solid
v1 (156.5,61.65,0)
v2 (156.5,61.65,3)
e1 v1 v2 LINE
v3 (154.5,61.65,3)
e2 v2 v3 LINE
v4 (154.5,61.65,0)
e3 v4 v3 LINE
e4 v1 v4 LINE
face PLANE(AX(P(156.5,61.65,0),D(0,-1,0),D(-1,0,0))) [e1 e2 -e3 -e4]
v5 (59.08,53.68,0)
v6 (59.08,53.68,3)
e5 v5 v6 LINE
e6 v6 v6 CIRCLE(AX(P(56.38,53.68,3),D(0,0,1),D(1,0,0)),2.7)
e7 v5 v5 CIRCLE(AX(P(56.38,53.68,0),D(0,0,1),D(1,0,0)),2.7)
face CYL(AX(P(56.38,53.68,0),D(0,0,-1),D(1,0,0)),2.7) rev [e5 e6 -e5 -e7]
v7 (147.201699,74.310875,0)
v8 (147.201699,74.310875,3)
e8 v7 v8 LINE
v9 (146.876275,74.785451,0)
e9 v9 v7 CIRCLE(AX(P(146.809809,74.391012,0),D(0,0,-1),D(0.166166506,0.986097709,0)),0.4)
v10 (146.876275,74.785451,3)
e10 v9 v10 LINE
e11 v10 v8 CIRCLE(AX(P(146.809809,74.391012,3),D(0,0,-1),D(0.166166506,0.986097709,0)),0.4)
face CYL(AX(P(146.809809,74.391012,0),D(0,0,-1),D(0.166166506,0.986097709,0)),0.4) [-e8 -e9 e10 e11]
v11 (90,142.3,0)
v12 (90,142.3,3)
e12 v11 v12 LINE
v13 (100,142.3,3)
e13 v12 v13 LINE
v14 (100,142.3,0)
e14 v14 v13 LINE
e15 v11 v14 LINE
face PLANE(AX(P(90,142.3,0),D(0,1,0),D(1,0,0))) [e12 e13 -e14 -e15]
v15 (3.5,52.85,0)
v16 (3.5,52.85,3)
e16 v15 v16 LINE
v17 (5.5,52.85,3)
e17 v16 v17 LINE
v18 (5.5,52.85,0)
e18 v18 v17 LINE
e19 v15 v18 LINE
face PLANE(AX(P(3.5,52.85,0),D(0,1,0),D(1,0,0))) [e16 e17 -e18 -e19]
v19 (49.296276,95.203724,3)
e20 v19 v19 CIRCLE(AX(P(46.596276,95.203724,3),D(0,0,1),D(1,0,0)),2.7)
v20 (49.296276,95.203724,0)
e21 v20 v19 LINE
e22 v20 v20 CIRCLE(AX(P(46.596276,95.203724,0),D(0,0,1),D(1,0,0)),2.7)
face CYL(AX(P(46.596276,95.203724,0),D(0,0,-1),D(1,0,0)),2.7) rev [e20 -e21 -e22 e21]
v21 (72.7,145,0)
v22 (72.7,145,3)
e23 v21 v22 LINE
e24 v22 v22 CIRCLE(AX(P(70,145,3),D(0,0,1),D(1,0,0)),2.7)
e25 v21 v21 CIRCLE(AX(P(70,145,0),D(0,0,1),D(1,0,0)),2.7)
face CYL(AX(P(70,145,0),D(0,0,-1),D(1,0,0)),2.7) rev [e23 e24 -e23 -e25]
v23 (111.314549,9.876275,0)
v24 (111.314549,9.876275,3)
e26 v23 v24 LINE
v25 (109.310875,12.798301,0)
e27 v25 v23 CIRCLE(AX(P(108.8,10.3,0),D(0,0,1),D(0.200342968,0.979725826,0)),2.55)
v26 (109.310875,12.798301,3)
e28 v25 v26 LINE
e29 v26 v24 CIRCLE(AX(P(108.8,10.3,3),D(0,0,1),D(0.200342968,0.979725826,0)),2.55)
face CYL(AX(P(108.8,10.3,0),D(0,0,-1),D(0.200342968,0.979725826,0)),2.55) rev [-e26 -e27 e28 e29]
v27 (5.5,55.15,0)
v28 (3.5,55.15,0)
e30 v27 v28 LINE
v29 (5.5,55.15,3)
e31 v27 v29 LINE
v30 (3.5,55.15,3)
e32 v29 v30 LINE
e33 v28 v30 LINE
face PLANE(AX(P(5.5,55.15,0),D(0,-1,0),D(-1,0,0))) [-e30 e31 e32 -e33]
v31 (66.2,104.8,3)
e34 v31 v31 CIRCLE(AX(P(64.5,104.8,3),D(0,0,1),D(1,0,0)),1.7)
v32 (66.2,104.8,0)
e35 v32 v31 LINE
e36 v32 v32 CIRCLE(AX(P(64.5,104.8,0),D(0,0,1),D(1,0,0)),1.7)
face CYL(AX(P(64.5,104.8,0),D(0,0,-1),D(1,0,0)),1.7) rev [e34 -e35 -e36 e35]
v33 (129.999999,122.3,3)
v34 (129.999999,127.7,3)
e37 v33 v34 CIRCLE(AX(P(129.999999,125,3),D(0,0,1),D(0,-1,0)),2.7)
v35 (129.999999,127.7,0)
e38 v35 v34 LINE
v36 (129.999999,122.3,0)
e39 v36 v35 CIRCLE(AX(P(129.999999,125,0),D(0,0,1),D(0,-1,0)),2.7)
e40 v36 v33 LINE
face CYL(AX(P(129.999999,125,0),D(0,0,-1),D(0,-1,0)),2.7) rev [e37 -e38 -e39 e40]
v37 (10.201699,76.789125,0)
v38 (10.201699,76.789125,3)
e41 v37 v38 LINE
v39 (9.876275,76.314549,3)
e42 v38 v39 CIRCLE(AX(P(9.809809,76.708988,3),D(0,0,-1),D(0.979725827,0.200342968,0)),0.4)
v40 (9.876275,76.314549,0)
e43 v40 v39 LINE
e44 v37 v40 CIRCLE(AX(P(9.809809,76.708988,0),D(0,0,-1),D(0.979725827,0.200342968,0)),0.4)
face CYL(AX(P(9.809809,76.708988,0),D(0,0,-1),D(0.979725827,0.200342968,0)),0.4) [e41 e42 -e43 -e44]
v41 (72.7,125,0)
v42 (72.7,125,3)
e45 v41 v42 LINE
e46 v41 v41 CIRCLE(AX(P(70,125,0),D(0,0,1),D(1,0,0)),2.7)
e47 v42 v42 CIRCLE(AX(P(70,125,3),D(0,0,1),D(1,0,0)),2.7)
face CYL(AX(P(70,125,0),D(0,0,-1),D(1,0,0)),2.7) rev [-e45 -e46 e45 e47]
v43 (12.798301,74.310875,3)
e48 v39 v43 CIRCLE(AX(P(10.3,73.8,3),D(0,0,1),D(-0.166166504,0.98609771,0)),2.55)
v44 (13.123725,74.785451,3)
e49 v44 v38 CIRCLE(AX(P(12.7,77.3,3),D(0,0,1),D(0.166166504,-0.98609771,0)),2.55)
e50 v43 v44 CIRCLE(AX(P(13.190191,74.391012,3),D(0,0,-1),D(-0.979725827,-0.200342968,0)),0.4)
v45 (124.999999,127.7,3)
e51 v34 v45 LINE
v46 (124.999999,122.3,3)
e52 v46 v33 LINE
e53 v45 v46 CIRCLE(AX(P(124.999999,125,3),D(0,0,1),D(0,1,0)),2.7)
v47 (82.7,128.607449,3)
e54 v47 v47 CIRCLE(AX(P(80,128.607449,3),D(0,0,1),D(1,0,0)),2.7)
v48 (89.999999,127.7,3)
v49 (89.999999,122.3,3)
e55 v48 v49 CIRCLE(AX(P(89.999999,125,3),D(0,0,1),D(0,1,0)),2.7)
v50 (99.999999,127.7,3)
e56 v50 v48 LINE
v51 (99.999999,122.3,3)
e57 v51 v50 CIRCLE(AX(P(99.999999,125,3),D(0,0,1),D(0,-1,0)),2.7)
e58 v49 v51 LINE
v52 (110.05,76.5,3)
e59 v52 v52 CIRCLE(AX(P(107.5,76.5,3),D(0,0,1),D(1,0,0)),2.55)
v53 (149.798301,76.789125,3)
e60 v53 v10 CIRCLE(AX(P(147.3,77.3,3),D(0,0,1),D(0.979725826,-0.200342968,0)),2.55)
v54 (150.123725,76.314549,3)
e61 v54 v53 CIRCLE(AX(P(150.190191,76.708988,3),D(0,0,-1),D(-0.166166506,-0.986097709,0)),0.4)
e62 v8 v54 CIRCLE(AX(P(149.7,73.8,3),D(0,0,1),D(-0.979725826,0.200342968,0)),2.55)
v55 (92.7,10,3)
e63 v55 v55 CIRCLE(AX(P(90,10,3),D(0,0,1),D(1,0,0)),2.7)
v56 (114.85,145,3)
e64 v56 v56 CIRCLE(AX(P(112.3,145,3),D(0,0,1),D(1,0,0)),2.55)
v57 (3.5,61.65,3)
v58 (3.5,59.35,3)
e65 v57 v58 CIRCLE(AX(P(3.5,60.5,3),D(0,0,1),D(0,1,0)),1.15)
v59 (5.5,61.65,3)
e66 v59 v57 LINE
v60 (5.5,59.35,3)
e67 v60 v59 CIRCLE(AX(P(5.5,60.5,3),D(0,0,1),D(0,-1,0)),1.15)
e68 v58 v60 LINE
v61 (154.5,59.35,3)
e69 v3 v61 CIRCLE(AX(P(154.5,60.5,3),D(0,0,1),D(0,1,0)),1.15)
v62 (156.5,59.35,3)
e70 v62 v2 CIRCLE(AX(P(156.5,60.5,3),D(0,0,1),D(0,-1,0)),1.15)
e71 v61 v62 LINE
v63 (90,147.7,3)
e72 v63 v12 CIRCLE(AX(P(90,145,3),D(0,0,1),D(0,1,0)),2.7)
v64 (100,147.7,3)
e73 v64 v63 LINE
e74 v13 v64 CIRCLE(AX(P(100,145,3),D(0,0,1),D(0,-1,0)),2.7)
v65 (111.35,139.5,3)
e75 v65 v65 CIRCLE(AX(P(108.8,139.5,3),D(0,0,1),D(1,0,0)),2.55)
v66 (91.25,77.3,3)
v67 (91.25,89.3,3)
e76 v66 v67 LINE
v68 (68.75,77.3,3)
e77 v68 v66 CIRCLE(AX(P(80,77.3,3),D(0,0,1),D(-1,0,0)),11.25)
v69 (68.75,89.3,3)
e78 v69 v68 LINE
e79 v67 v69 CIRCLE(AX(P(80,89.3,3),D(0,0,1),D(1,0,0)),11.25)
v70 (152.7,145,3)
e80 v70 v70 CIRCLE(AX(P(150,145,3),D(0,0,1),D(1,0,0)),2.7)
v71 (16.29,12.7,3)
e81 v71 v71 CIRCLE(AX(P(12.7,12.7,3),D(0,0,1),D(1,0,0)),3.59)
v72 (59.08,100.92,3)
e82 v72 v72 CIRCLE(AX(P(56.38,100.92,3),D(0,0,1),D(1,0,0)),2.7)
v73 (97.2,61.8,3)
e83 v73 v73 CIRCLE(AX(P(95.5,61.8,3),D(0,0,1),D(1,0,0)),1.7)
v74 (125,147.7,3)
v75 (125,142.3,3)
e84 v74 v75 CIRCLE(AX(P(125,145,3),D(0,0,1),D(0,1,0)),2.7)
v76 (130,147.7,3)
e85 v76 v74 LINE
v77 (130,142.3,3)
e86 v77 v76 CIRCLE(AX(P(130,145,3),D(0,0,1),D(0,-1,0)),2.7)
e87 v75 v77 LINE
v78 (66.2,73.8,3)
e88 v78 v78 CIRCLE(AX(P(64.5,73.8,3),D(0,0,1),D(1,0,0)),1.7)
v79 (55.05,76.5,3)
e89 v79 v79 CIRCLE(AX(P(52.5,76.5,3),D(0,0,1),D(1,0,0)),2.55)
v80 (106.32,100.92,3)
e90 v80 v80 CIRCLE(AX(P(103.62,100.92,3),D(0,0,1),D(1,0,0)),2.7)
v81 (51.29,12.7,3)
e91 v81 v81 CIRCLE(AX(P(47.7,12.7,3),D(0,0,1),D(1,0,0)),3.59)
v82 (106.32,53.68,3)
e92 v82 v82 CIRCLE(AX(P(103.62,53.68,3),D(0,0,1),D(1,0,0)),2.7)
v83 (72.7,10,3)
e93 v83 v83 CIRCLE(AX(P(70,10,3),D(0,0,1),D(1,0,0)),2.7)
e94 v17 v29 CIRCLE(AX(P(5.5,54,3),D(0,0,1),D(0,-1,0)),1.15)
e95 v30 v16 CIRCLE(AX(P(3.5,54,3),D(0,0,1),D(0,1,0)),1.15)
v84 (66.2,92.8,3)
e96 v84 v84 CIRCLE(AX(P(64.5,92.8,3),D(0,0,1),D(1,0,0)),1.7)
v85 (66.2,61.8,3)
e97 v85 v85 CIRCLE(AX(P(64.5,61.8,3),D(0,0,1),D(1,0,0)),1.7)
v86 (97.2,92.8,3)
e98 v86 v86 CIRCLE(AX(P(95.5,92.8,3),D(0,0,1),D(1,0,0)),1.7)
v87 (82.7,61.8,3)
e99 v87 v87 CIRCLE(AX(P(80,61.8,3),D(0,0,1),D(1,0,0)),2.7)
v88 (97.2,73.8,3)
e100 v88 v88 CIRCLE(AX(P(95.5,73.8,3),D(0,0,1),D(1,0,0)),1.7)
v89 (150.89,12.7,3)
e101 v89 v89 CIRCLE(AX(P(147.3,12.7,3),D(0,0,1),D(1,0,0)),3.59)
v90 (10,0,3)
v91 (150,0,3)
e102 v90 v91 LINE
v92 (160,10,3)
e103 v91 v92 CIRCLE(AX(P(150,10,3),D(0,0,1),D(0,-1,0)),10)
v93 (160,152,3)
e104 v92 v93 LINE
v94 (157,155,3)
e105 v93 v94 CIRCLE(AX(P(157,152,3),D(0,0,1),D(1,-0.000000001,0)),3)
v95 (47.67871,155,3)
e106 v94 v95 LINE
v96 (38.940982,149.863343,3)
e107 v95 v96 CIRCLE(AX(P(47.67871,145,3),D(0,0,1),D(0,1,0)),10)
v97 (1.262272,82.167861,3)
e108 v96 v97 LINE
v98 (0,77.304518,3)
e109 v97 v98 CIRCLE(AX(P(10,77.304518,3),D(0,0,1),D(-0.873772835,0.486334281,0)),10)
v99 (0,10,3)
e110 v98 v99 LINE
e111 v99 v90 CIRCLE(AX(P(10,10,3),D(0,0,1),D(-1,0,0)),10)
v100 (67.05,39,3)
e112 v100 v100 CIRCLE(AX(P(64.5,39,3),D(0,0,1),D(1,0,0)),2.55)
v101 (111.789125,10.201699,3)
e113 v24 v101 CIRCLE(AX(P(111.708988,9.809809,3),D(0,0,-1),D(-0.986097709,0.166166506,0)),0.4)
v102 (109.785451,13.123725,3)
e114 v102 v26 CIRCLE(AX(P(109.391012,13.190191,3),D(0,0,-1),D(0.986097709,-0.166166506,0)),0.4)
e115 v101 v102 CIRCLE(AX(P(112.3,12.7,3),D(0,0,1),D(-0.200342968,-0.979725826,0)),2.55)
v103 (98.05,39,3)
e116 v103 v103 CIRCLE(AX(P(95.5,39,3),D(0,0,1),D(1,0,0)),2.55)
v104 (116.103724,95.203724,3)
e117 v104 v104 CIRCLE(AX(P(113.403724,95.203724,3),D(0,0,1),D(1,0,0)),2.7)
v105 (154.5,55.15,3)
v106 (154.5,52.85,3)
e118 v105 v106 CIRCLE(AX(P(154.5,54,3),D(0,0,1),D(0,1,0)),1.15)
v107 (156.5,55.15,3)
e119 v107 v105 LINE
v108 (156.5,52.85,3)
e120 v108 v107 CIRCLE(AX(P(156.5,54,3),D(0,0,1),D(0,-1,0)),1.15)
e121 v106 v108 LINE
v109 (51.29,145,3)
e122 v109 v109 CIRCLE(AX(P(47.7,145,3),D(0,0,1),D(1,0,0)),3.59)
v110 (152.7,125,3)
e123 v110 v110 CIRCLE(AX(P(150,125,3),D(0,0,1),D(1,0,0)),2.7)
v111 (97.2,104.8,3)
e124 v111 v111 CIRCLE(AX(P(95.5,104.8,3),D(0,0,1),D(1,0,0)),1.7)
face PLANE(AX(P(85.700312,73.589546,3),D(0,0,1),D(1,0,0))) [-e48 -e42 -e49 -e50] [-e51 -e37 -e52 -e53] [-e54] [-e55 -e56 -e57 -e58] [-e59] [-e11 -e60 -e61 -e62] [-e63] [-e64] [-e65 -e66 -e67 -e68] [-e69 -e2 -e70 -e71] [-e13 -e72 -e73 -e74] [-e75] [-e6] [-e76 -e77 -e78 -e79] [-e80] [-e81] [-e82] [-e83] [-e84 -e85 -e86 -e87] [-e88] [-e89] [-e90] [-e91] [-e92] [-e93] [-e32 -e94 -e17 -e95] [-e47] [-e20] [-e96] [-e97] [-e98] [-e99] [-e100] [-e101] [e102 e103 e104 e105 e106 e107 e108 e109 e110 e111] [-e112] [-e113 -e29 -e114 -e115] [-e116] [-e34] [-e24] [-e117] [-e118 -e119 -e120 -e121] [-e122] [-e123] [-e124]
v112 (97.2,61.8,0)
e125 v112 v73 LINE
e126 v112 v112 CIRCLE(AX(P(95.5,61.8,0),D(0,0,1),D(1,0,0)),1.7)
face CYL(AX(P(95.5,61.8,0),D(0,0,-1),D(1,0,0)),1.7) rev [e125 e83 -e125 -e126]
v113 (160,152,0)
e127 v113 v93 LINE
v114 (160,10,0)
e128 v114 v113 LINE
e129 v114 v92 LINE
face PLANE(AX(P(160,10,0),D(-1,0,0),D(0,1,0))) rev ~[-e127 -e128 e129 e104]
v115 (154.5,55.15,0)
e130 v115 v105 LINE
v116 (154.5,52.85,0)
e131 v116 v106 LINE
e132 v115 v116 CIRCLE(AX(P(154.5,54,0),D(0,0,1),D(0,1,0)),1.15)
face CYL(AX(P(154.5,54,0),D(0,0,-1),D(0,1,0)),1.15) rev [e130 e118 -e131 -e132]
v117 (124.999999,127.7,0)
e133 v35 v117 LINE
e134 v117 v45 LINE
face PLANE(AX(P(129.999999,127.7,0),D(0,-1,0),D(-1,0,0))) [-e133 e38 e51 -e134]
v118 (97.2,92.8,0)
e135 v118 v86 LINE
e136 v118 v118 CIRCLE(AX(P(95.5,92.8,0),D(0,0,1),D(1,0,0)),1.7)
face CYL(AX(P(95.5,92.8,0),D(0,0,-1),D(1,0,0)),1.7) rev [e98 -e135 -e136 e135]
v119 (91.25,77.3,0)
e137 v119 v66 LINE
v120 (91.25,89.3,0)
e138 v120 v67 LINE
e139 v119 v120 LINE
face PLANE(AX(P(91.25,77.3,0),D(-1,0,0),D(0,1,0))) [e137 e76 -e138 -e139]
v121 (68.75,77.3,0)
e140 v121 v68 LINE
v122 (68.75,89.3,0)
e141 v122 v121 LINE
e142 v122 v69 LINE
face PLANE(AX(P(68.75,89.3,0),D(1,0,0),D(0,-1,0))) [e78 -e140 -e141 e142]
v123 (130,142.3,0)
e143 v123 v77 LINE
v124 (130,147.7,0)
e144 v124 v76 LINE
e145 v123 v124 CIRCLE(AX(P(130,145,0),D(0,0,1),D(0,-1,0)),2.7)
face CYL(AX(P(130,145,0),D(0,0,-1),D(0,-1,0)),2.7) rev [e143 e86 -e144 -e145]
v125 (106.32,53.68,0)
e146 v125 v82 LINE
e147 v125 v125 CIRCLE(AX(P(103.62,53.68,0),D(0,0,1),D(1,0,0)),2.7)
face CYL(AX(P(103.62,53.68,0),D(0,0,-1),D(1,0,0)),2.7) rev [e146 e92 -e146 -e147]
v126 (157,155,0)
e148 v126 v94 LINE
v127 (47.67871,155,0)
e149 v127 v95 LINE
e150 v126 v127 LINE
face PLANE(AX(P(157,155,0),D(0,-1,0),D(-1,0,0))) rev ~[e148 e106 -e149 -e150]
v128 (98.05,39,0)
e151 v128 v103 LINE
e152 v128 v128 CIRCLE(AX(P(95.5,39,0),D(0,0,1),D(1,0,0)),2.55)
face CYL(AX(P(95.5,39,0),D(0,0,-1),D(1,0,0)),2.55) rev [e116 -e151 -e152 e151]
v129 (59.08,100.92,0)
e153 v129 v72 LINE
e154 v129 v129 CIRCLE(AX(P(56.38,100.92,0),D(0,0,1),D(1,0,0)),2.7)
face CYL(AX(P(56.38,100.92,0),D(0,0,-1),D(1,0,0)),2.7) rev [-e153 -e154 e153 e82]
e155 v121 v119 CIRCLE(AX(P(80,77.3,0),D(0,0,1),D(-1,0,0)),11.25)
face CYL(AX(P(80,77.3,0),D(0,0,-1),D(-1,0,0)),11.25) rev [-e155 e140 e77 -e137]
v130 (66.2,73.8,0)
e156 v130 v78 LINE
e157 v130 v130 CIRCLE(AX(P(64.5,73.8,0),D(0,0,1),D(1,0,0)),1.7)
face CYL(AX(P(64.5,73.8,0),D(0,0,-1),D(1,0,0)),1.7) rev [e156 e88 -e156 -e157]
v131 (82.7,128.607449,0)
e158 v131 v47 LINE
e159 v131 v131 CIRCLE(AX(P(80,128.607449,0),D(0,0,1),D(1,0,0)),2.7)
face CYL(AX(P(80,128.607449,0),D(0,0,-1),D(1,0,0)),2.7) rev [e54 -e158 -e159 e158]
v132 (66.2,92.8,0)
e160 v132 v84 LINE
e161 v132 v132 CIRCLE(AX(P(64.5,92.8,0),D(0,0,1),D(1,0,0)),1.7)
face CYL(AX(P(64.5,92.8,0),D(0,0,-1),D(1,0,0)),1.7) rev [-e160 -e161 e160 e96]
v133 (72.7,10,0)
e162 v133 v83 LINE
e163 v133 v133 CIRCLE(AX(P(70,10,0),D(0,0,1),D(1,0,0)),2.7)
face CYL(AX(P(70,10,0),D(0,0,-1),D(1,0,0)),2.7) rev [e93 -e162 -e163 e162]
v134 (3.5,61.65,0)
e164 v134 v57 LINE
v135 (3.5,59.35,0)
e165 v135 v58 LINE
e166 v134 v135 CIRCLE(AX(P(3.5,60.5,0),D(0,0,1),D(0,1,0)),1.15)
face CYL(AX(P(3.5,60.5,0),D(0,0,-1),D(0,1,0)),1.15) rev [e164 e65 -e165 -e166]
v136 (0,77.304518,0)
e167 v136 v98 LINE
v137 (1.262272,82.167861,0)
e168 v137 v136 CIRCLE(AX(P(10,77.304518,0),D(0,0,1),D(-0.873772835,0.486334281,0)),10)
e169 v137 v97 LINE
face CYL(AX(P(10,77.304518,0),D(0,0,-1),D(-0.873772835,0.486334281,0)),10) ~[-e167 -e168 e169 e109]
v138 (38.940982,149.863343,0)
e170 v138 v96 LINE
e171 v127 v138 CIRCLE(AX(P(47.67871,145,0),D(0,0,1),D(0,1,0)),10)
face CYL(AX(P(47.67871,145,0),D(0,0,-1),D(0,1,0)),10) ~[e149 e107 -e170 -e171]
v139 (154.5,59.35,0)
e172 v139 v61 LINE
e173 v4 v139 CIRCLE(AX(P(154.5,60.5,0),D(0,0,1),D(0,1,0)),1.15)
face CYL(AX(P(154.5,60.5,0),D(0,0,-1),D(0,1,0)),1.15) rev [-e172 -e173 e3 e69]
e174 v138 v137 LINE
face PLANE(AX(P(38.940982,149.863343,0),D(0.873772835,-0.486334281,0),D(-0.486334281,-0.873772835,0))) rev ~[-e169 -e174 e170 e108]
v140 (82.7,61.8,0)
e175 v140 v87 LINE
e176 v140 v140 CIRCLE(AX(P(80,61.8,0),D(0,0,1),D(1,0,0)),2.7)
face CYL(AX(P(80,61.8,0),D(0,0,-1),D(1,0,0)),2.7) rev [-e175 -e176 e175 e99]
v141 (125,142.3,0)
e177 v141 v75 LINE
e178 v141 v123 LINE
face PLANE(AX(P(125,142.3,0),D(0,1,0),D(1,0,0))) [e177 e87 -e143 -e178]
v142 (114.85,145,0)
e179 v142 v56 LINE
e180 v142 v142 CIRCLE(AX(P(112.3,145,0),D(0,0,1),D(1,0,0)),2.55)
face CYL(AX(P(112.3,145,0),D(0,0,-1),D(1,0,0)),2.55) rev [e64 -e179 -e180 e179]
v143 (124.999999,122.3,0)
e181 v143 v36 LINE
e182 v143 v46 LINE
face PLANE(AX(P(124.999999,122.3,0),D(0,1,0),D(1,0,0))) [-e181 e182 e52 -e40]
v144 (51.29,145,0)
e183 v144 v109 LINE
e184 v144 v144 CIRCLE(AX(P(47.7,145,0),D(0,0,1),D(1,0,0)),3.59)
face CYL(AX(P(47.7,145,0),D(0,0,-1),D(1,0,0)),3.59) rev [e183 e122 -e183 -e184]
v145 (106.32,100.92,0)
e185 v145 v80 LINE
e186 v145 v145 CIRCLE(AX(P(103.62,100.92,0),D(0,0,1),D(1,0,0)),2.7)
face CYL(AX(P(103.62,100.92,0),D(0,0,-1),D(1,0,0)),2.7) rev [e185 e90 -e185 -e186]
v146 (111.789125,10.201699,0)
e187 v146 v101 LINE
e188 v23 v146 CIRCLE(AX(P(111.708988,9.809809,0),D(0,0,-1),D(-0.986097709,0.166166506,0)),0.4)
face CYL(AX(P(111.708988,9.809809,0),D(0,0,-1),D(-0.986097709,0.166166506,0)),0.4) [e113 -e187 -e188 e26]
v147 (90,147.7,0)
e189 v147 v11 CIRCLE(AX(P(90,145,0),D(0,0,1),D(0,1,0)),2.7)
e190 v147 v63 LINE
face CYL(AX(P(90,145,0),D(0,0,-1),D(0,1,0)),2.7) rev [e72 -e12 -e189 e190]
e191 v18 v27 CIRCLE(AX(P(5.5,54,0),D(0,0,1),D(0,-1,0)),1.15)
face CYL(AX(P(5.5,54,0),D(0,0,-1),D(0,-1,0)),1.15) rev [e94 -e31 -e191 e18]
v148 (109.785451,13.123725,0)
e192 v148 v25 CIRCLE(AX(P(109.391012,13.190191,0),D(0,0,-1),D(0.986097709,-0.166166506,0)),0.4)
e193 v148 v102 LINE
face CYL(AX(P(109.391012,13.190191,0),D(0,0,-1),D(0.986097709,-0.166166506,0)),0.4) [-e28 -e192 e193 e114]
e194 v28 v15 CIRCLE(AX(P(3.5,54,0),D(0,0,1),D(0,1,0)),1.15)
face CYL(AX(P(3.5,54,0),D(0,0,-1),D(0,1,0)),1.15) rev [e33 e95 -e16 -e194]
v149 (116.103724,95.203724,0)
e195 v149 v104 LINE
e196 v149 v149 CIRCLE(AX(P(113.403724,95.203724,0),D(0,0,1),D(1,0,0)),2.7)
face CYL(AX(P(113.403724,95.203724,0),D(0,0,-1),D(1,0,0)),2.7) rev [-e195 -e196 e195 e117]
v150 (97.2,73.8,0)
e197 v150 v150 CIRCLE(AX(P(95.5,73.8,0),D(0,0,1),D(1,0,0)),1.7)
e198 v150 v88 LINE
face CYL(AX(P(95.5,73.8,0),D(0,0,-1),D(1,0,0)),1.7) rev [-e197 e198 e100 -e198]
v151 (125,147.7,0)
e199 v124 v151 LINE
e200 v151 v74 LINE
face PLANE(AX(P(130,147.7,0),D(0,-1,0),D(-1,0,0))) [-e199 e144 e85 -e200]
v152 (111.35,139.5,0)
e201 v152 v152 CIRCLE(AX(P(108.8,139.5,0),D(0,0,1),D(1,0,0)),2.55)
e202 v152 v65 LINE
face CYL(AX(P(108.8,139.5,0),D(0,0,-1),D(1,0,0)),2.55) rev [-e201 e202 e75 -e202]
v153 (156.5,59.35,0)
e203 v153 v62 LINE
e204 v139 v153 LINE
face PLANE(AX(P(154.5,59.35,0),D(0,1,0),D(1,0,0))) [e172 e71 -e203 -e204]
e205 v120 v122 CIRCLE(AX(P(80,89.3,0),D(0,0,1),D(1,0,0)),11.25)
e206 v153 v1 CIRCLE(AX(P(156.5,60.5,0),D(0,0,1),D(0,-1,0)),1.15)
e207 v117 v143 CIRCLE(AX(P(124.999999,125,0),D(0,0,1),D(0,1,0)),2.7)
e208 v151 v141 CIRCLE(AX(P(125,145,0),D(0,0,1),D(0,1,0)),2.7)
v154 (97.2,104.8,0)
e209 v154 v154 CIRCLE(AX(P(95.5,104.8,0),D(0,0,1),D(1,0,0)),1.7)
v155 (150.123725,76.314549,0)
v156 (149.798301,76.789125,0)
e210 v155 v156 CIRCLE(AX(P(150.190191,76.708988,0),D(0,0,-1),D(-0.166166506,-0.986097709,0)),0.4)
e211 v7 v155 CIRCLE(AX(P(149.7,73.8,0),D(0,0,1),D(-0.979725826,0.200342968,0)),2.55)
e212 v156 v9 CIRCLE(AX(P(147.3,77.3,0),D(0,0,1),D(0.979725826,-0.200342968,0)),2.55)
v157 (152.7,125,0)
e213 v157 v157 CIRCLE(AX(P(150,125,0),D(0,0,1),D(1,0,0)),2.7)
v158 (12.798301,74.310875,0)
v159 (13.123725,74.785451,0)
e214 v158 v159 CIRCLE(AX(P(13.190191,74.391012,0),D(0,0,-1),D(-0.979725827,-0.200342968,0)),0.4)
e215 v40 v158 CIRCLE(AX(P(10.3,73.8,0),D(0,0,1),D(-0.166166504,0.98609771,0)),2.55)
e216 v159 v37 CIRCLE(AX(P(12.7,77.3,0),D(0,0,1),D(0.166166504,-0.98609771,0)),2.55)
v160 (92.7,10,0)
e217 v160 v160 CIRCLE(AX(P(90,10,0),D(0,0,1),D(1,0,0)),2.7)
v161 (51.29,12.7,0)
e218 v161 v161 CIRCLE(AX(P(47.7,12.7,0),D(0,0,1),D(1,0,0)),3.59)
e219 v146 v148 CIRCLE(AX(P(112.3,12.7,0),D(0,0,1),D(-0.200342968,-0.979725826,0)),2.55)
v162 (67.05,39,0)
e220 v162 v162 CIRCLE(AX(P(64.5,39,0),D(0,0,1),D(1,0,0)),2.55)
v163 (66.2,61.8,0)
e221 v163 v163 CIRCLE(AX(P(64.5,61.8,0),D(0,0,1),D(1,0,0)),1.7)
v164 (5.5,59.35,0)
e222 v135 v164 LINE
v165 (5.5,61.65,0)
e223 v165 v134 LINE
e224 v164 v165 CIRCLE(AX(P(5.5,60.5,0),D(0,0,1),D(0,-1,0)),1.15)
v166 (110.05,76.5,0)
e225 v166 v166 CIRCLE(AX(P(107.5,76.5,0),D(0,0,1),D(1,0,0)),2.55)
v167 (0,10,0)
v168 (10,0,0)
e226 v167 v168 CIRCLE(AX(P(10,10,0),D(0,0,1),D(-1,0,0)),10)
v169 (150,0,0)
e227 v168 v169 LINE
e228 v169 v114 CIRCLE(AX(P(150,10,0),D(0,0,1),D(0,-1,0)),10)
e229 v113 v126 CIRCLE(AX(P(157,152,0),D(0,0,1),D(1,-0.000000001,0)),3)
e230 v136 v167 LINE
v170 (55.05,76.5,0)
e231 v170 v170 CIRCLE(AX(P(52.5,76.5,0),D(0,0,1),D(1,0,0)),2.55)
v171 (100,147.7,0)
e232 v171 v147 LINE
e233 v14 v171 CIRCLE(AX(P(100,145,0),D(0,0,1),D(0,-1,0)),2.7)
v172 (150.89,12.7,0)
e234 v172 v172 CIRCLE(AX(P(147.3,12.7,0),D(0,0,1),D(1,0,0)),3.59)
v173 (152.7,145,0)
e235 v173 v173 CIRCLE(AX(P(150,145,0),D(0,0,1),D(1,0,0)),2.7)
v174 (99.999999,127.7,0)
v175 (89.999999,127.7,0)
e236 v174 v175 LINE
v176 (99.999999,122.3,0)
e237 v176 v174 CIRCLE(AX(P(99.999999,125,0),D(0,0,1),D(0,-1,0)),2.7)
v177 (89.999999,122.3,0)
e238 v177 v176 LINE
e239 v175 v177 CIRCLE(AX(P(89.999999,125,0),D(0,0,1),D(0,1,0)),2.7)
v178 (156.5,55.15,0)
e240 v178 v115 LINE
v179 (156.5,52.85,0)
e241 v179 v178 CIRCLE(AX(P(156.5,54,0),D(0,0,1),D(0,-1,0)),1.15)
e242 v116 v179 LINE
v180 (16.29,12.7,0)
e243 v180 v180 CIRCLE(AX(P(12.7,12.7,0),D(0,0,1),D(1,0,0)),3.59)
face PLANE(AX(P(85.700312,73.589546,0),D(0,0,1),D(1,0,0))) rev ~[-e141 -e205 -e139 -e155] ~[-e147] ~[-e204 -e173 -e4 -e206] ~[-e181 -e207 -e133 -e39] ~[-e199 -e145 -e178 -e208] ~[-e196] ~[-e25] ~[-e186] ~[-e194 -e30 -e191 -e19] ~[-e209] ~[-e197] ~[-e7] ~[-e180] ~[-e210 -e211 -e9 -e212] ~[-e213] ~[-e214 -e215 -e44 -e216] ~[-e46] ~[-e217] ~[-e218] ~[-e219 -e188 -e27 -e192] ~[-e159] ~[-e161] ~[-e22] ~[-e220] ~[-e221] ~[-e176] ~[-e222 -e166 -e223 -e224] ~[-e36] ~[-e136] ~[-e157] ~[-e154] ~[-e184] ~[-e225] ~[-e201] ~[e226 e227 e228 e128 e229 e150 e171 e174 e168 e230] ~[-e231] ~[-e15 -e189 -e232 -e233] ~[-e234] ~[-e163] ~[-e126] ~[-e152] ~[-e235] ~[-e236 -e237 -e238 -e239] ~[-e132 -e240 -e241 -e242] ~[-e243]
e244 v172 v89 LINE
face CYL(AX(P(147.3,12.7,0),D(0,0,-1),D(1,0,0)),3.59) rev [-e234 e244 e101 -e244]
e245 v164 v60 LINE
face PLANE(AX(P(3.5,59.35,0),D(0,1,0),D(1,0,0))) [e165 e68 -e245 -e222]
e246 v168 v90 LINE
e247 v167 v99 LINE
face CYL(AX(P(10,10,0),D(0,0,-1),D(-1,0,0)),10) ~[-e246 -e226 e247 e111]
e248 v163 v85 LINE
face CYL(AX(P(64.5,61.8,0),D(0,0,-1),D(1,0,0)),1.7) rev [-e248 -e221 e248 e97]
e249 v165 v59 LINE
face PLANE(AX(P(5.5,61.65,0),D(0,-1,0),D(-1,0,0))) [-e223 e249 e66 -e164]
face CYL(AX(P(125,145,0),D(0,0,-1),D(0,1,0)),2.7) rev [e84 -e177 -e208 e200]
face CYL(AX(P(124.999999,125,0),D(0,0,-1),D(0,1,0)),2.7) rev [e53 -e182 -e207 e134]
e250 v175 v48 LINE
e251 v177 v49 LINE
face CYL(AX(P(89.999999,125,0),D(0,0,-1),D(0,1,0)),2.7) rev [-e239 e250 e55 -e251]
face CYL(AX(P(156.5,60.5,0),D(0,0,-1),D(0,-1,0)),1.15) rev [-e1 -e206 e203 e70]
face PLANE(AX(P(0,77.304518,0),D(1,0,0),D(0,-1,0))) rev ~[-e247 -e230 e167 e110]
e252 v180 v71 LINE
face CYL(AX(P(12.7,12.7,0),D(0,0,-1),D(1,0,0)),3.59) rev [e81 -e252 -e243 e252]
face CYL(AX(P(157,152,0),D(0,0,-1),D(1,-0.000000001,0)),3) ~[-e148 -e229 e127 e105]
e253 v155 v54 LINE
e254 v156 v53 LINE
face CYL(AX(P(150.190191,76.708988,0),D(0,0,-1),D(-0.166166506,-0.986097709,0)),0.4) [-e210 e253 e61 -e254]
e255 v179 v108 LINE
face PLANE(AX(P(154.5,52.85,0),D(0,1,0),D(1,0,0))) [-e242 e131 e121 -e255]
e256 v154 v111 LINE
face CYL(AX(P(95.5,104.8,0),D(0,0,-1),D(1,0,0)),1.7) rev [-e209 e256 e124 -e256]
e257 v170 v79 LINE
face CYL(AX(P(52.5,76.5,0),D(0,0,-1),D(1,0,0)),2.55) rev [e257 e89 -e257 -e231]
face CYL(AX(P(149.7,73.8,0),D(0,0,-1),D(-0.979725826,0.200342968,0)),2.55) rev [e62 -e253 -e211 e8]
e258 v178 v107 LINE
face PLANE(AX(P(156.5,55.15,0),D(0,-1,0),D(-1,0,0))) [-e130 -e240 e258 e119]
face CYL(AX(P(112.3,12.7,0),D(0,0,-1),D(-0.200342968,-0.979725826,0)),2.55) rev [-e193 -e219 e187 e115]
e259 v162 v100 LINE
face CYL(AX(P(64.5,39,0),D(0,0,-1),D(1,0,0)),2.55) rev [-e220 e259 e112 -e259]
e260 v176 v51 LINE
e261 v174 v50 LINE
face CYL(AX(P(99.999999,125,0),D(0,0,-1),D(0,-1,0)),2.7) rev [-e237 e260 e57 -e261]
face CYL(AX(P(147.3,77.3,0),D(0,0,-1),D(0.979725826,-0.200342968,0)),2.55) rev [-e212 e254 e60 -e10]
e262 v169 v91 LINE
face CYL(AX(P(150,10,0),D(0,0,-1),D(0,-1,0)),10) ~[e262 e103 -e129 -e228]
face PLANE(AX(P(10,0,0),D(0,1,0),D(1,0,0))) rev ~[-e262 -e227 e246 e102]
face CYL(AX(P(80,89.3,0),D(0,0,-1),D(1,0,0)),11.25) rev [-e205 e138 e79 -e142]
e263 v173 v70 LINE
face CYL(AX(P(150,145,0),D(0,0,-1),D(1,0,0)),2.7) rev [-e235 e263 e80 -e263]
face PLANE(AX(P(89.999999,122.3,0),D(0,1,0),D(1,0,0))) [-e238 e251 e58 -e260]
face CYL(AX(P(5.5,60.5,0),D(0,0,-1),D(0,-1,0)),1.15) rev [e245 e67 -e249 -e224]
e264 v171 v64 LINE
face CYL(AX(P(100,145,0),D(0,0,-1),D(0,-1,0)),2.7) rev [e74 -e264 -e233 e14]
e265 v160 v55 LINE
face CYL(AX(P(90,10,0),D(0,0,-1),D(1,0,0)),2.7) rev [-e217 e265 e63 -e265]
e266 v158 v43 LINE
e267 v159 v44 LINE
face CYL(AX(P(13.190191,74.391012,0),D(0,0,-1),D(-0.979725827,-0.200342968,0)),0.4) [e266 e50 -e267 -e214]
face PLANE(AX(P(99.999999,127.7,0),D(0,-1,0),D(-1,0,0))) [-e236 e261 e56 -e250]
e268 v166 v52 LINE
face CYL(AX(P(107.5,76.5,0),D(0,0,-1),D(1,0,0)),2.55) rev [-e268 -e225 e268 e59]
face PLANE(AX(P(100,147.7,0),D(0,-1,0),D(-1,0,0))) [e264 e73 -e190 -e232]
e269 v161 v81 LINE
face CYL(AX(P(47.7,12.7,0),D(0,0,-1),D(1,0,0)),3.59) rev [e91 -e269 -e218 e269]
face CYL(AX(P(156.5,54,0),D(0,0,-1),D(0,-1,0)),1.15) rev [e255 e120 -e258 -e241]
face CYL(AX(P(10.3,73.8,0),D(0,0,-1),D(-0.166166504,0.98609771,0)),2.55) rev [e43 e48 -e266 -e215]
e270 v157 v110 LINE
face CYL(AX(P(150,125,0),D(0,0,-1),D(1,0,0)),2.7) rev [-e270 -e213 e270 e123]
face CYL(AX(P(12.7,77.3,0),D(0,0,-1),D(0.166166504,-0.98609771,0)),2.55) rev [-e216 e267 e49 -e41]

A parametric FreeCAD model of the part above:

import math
import FreeCAD as App
import Part
import Sketcher

doc = App.newDocument("Part")
params = doc.addObject("Spreadsheet::Sheet", "Params")
for row, (alias, value) in enumerate([
    ("sketch1_radius", "10 mm"),
    ("sketch1_radius2", "3 mm"),
    ("sketch1_diameter", "5.4 mm"),
    ("sketch1_diameter2", "5.1 mm"),
    ("sketch1_diameter3", "3.4 mm"),
    ("pad1_length", "3 mm"),
], start=1):
    params.set(f"A{row}", alias)
    params.set(f"B{row}", "=" + value)
    params.setAlias(f"B{row}", alias)

body = doc.addObject("PartDesign::Body", "Body")

sketch1 = body.newObject("Sketcher::SketchObject", "Sketch")
sketch1.AttachmentSupport = (doc.getObject("XY_Plane"), [""])
sketch1.MapMode = "FlatFace"
sketch1.addGeometry([
    Part.LineSegment(App.Vector(157, 155, 0), App.Vector(47.68, 155, 0)),
    Part.ArcOfCircle(Part.Circle(App.Vector(47.68, 145, 0), App.Vector(0, 0, 1), 10), math.radians(90), math.radians(151)),
    Part.LineSegment(App.Vector(38.94, 149.86, 0), App.Vector(1.26, 82.17, 0)),
    Part.ArcOfCircle(Part.Circle(App.Vector(10, 77.3, 0), App.Vector(0, 0, 1), 10), math.radians(151), math.radians(180)),
    Part.LineSegment(App.Vector(0, 77.3, 0), App.Vector(0, 10, 0)),
    Part.ArcOfCircle(Part.Circle(App.Vector(10, 10, 0), App.Vector(0, 0, 1), 10), math.radians(180), math.radians(270)),
    Part.LineSegment(App.Vector(10, 0, 0), App.Vector(150, 0, 0)),
    Part.ArcOfCircle(Part.Circle(App.Vector(150, 10, 0), App.Vector(0, 0, 1), 10), math.radians(-90), math.radians(0)),
    Part.LineSegment(App.Vector(160, 10, 0), App.Vector(160, 152, 0)),
    Part.ArcOfCircle(Part.Circle(App.Vector(157, 152, 0), App.Vector(0, 0, 1), 3), math.radians(0), math.radians(90)),
    Part.Circle(App.Vector(12.7, 12.7, 0), App.Vector(0, 0, 1), 3.59),
    Part.Circle(App.Vector(47.7, 12.7, 0), App.Vector(0, 0, 1), 3.59),
    Part.Circle(App.Vector(70, 10, 0), App.Vector(0, 0, 1), 2.7),
    Part.Circle(App.Vector(64.5, 39, 0), App.Vector(0, 0, 1), 2.55),
    Part.LineSegment(App.Vector(3.5, 55.15, 0), App.Vector(5.5, 55.15, 0)),
    Part.ArcOfCircle(Part.Circle(App.Vector(5.5, 54, 0), App.Vector(0, 0, 1), 1.15), math.radians(-90), math.radians(90)),
    Part.LineSegment(App.Vector(5.5, 52.85, 0), App.Vector(3.5, 52.85, 0)),
    Part.ArcOfCircle(Part.Circle(App.Vector(3.5, 54, 0), App.Vector(0, 0, 1), 1.15), math.radians(90), math.radians(270)),
    Part.LineSegment(App.Vector(3.5, 61.65, 0), App.Vector(5.5, 61.65, 0)),
    Part.ArcOfCircle(Part.Circle(App.Vector(5.5, 60.5, 0), App.Vector(0, 0, 1), 1.15), math.radians(-90), math.radians(90)),
    Part.LineSegment(App.Vector(5.5, 59.35, 0), App.Vector(3.5, 59.35, 0)),
    Part.ArcOfCircle(Part.Circle(App.Vector(3.5, 60.5, 0), App.Vector(0, 0, 1), 1.15), math.radians(90), math.radians(270)),
    Part.ArcOfCircle(Part.Circle(App.Vector(12.7, 77.3, 0), App.Vector(0, 0, 1), 2.55), math.radians(-80), math.radians(192)),
    Part.ArcOfCircle(Part.Circle(App.Vector(13.19, 74.39, 0), App.Vector(0, 0, 1), 0.4), math.radians(100), math.radians(192)),
    Part.ArcOfCircle(Part.Circle(App.Vector(10.3, 73.8, 0), App.Vector(0, 0, 1), 2.55), math.radians(100), math.radians(372)),
    Part.ArcOfCircle(Part.Circle(App.Vector(9.81, 76.71, 0), App.Vector(0, 0, 1), 0.4), math.radians(-80), math.radians(12)),
    Part.Circle(App.Vector(56.38, 53.68, 0), App.Vector(0, 0, 1), 2.7),
    Part.Circle(App.Vector(52.5, 76.5, 0), App.Vector(0, 0, 1), 2.55),
    Part.Circle(App.Vector(64.5, 61.8, 0), App.Vector(0, 0, 1), 1.7),
    Part.Circle(App.Vector(64.5, 73.8, 0), App.Vector(0, 0, 1), 1.7),
    Part.Circle(App.Vector(90, 10, 0), App.Vector(0, 0, 1), 2.7),
    Part.ArcOfCircle(Part.Circle(App.Vector(108.8, 10.3, 0), App.Vector(0, 0, 1), 2.55), math.radians(78), math.radians(350)),
    Part.ArcOfCircle(Part.Circle(App.Vector(109.39, 13.19, 0), App.Vector(0, 0, 1), 0.4), math.radians(-102), math.radians(-10)),
    Part.ArcOfCircle(Part.Circle(App.Vector(112.3, 12.7, 0), App.Vector(0, 0, 1), 2.55), math.radians(-102), math.radians(170)),
    Part.ArcOfCircle(Part.Circle(App.Vector(111.71, 9.81, 0), App.Vector(0, 0, 1), 0.4), math.radians(78), math.radians(170)),
    Part.Circle(App.Vector(95.5, 39, 0), App.Vector(0, 0, 1), 2.55),
    Part.Circle(App.Vector(147.3, 12.7, 0), App.Vector(0, 0, 1), 3.59),
    Part.Circle(App.Vector(103.62, 53.68, 0), App.Vector(0, 0, 1), 2.7),
    Part.Circle(App.Vector(80, 61.8, 0), App.Vector(0, 0, 1), 2.7),
    Part.Circle(App.Vector(95.5, 61.8, 0), App.Vector(0, 0, 1), 1.7),
    Part.Circle(App.Vector(95.5, 73.8, 0), App.Vector(0, 0, 1), 1.7),
    Part.Circle(App.Vector(107.5, 76.5, 0), App.Vector(0, 0, 1), 2.55),
    Part.LineSegment(App.Vector(154.5, 55.15, 0), App.Vector(156.5, 55.15, 0)),
    Part.ArcOfCircle(Part.Circle(App.Vector(156.5, 54, 0), App.Vector(0, 0, 1), 1.15), math.radians(-90), math.radians(90)),
    Part.LineSegment(App.Vector(156.5, 52.85, 0), App.Vector(154.5, 52.85, 0)),
    Part.ArcOfCircle(Part.Circle(App.Vector(154.5, 54, 0), App.Vector(0, 0, 1), 1.15), math.radians(90), math.radians(270)),
    Part.LineSegment(App.Vector(154.5, 61.65, 0), App.Vector(156.5, 61.65, 0)),
    Part.ArcOfCircle(Part.Circle(App.Vector(156.5, 60.5, 0), App.Vector(0, 0, 1), 1.15), math.radians(-90), math.radians(90)),
    Part.LineSegment(App.Vector(156.5, 59.35, 0), App.Vector(154.5, 59.35, 0)),
    Part.ArcOfCircle(Part.Circle(App.Vector(154.5, 60.5, 0), App.Vector(0, 0, 1), 1.15), math.radians(90), math.radians(270)),
    Part.ArcOfCircle(Part.Circle(App.Vector(149.7, 73.8, 0), App.Vector(0, 0, 1), 2.55), math.radians(168), math.radians(440)),
    Part.ArcOfCircle(Part.Circle(App.Vector(146.81, 74.39, 0), App.Vector(0, 0, 1), 0.4), math.radians(-12), math.radians(80)),
    Part.ArcOfCircle(Part.Circle(App.Vector(147.3, 77.3, 0), App.Vector(0, 0, 1), 2.55), math.radians(-12), math.radians(260)),
    Part.ArcOfCircle(Part.Circle(App.Vector(150.19, 76.71, 0), App.Vector(0, 0, 1), 0.4), math.radians(168), math.radians(260)),
    Part.Circle(App.Vector(46.6, 95.2, 0), App.Vector(0, 0, 1), 2.7),
    Part.Circle(App.Vector(64.5, 92.8, 0), App.Vector(0, 0, 1), 1.7),
    Part.Circle(App.Vector(56.38, 100.92, 0), App.Vector(0, 0, 1), 2.7),
    Part.Circle(App.Vector(64.5, 104.8, 0), App.Vector(0, 0, 1), 1.7),
    Part.Circle(App.Vector(70, 125, 0), App.Vector(0, 0, 1), 2.7),
    Part.Circle(App.Vector(47.7, 145, 0), App.Vector(0, 0, 1), 3.59),
    Part.Circle(App.Vector(70, 145, 0), App.Vector(0, 0, 1), 2.7),
    Part.LineSegment(App.Vector(68.75, 77.3, 0), App.Vector(68.75, 89.3, 0)),
    Part.ArcOfCircle(Part.Circle(App.Vector(80, 89.3, 0), App.Vector(0, 0, 1), 11.25), math.radians(0), math.radians(180)),
    Part.LineSegment(App.Vector(91.25, 89.3, 0), App.Vector(91.25, 77.3, 0)),
    Part.ArcOfCircle(Part.Circle(App.Vector(80, 77.3, 0), App.Vector(0, 0, 1), 11.25), math.radians(180), math.radians(360)),
    Part.Circle(App.Vector(95.5, 92.8, 0), App.Vector(0, 0, 1), 1.7),
    Part.Circle(App.Vector(113.4, 95.2, 0), App.Vector(0, 0, 1), 2.7),
    Part.Circle(App.Vector(95.5, 104.8, 0), App.Vector(0, 0, 1), 1.7),
    Part.Circle(App.Vector(103.62, 100.92, 0), App.Vector(0, 0, 1), 2.7),
    Part.Circle(App.Vector(80, 128.61, 0), App.Vector(0, 0, 1), 2.7),
    Part.LineSegment(App.Vector(90, 127.7, 0), App.Vector(100, 127.7, 0)),
    Part.ArcOfCircle(Part.Circle(App.Vector(100, 125, 0), App.Vector(0, 0, 1), 2.7), math.radians(-90), math.radians(90)),
    Part.LineSegment(App.Vector(100, 122.3, 0), App.Vector(90, 122.3, 0)),
    Part.ArcOfCircle(Part.Circle(App.Vector(90, 125, 0), App.Vector(0, 0, 1), 2.7), math.radians(90), math.radians(270)),
    Part.LineSegment(App.Vector(90, 147.7, 0), App.Vector(100, 147.7, 0)),
    Part.ArcOfCircle(Part.Circle(App.Vector(100, 145, 0), App.Vector(0, 0, 1), 2.7), math.radians(-90), math.radians(90)),
    Part.LineSegment(App.Vector(100, 142.3, 0), App.Vector(90, 142.3, 0)),
    Part.ArcOfCircle(Part.Circle(App.Vector(90, 145, 0), App.Vector(0, 0, 1), 2.7), math.radians(90), math.radians(270)),
    Part.Circle(App.Vector(108.8, 139.5, 0), App.Vector(0, 0, 1), 2.55),
    Part.Circle(App.Vector(112.3, 145, 0), App.Vector(0, 0, 1), 2.55),
    Part.LineSegment(App.Vector(125, 127.7, 0), App.Vector(130, 127.7, 0)),
    Part.ArcOfCircle(Part.Circle(App.Vector(130, 125, 0), App.Vector(0, 0, 1), 2.7), math.radians(-90), math.radians(90)),
    Part.LineSegment(App.Vector(130, 122.3, 0), App.Vector(125, 122.3, 0)),
    Part.ArcOfCircle(Part.Circle(App.Vector(125, 125, 0), App.Vector(0, 0, 1), 2.7), math.radians(90), math.radians(270)),
    Part.Circle(App.Vector(150, 125, 0), App.Vector(0, 0, 1), 2.7),
    Part.LineSegment(App.Vector(125, 147.7, 0), App.Vector(130, 147.7, 0)),
    Part.ArcOfCircle(Part.Circle(App.Vector(130, 145, 0), App.Vector(0, 0, 1), 2.7), math.radians(-90), math.radians(90)),
    Part.LineSegment(App.Vector(130, 142.3, 0), App.Vector(125, 142.3, 0)),
    Part.ArcOfCircle(Part.Circle(App.Vector(125, 145, 0), App.Vector(0, 0, 1), 2.7), math.radians(90), math.radians(270)),
    Part.Circle(App.Vector(150, 145, 0), App.Vector(0, 0, 1), 2.7),
], False)
sketch1.addConstraint([
    Sketcher.Constraint("Tangent", 0, 2, 1, 1),
    Sketcher.Constraint("Tangent", 1, 2, 2, 1),
    Sketcher.Constraint("Tangent", 2, 2, 3, 1),
    Sketcher.Constraint("Tangent", 3, 2, 4, 1),
    Sketcher.Constraint("Tangent", 4, 2, 5, 1),
    Sketcher.Constraint("Tangent", 5, 2, 6, 1),
    Sketcher.Constraint("Tangent", 6, 2, 7, 1),
    Sketcher.Constraint("Tangent", 7, 2, 8, 1),
    Sketcher.Constraint("Tangent", 8, 2, 9, 1),
    Sketcher.Constraint("Tangent", 9, 2, 0, 1),
    Sketcher.Constraint("Tangent", 14, 2, 15, 2),
    Sketcher.Constraint("Tangent", 15, 1, 16, 1),
    Sketcher.Constraint("Tangent", 16, 2, 17, 2),
    Sketcher.Constraint("Tangent", 17, 1, 14, 1),
    Sketcher.Constraint("Tangent", 18, 2, 19, 2),
    Sketcher.Constraint("Tangent", 19, 1, 20, 1),
    Sketcher.Constraint("Tangent", 20, 2, 21, 2),
    Sketcher.Constraint("Tangent", 21, 1, 18, 1),
    Sketcher.Constraint("Tangent", 22, 1, 23, 1),
    Sketcher.Constraint("Tangent", 23, 2, 24, 2),
    Sketcher.Constraint("Tangent", 24, 1, 25, 1),
    Sketcher.Constraint("Tangent", 25, 2, 22, 2),
    Sketcher.Constraint("Tangent", 31, 1, 32, 1),
    Sketcher.Constraint("Tangent", 32, 2, 33, 2),
    Sketcher.Constraint("Tangent", 33, 1, 34, 1),
    Sketcher.Constraint("Tangent", 34, 2, 31, 2),
    Sketcher.Constraint("Tangent", 42, 2, 43, 2),
    Sketcher.Constraint("Tangent", 43, 1, 44, 1),
    Sketcher.Constraint("Tangent", 44, 2, 45, 2),
    Sketcher.Constraint("Tangent", 45, 1, 42, 1),
    Sketcher.Constraint("Tangent", 46, 2, 47, 2),
    Sketcher.Constraint("Tangent", 47, 1, 48, 1),
    Sketcher.Constraint("Tangent", 48, 2, 49, 2),
    Sketcher.Constraint("Tangent", 49, 1, 46, 1),
    Sketcher.Constraint("Tangent", 50, 1, 51, 1),
    Sketcher.Constraint("Tangent", 51, 2, 52, 2),
    Sketcher.Constraint("Tangent", 52, 1, 53, 1),
    Sketcher.Constraint("Tangent", 53, 2, 50, 2),
    Sketcher.Constraint("Tangent", 61, 2, 62, 2),
    Sketcher.Constraint("Tangent", 62, 1, 63, 1),
    Sketcher.Constraint("Tangent", 63, 2, 64, 2),
    Sketcher.Constraint("Tangent", 64, 1, 61, 1),
    Sketcher.Constraint("Tangent", 70, 2, 71, 2),
    Sketcher.Constraint("Tangent", 71, 1, 72, 1),
    Sketcher.Constraint("Tangent", 72, 2, 73, 2),
    Sketcher.Constraint("Tangent", 73, 1, 70, 1),
    Sketcher.Constraint("Tangent", 74, 2, 75, 2),
    Sketcher.Constraint("Tangent", 75, 1, 76, 1),
    Sketcher.Constraint("Tangent", 76, 2, 77, 2),
    Sketcher.Constraint("Tangent", 77, 1, 74, 1),
    Sketcher.Constraint("Tangent", 80, 2, 81, 2),
    Sketcher.Constraint("Tangent", 81, 1, 82, 1),
    Sketcher.Constraint("Tangent", 82, 2, 83, 2),
    Sketcher.Constraint("Tangent", 83, 1, 80, 1),
    Sketcher.Constraint("Tangent", 85, 2, 86, 2),
    Sketcher.Constraint("Tangent", 86, 1, 87, 1),
    Sketcher.Constraint("Tangent", 87, 2, 88, 2),
    Sketcher.Constraint("Tangent", 88, 1, 85, 1),
    Sketcher.Constraint("Horizontal", 0),
    Sketcher.Constraint("Vertical", 4),
    Sketcher.Constraint("Horizontal", 6),
    Sketcher.Constraint("Vertical", 8),
    Sketcher.Constraint("Horizontal", 14),
    Sketcher.Constraint("Horizontal", 16),
    Sketcher.Constraint("Horizontal", 18),
    Sketcher.Constraint("Horizontal", 20),
    Sketcher.Constraint("Horizontal", 42),
    Sketcher.Constraint("Horizontal", 44),
    Sketcher.Constraint("Horizontal", 46),
    Sketcher.Constraint("Horizontal", 48),
    Sketcher.Constraint("Vertical", 61),
    Sketcher.Constraint("Vertical", 63),
    Sketcher.Constraint("Horizontal", 70),
    Sketcher.Constraint("Horizontal", 72),
    Sketcher.Constraint("Horizontal", 74),
    Sketcher.Constraint("Horizontal", 76),
    Sketcher.Constraint("Horizontal", 80),
    Sketcher.Constraint("Horizontal", 82),
    Sketcher.Constraint("Horizontal", 85),
    Sketcher.Constraint("Horizontal", 87),
    Sketcher.Constraint("Equal", 1, 3),
    Sketcher.Constraint("Equal", 3, 5),
    Sketcher.Constraint("Equal", 5, 7),
    Sketcher.Constraint("Equal", 10, 11),
    Sketcher.Constraint("Equal", 17, 19),
    Sketcher.Constraint("Equal", 13, 22),
    Sketcher.Constraint("Equal", 22, 24),
    Sketcher.Constraint("Equal", 23, 25),
    Sketcher.Constraint("Equal", 12, 26),
    Sketcher.Constraint("Equal", 24, 27),
    Sketcher.Constraint("Equal", 28, 29),
    Sketcher.Constraint("Equal", 26, 30),
    Sketcher.Constraint("Equal", 27, 31),
    Sketcher.Constraint("Equal", 25, 32),
    Sketcher.Constraint("Equal", 31, 33),
    Sketcher.Constraint("Equal", 32, 34),
    Sketcher.Constraint("Equal", 33, 35),
    Sketcher.Constraint("Equal", 11, 36),
    Sketcher.Constraint("Equal", 30, 37),
    Sketcher.Constraint("Equal", 37, 38),
    Sketcher.Constraint("Equal", 29, 39),
    Sketcher.Constraint("Equal", 39, 40),
    Sketcher.Constraint("Equal", 35, 41),
    Sketcher.Constraint("Equal", 21, 43),
    Sketcher.Constraint("Equal", 45, 47),
    Sketcher.Constraint("Equal", 41, 50),
    Sketcher.Constraint("Equal", 34, 51),
    Sketcher.Constraint("Equal", 50, 52),
    Sketcher.Constraint("Equal", 51, 53),
    Sketcher.Constraint("Equal", 38, 54),
    Sketcher.Constraint("Equal", 40, 55),
    Sketcher.Constraint("Equal", 54, 56),
    Sketcher.Constraint("Equal", 55, 57),
    Sketcher.Constraint("Equal", 56, 58),
    Sketcher.Constraint("Equal", 36, 59),
    Sketcher.Constraint("Equal", 58, 60),
    Sketcher.Constraint("Equal", 57, 65),
    Sketcher.Constraint("Equal", 60, 66),
    Sketcher.Constraint("Equal", 65, 67),
    Sketcher.Constraint("Equal", 66, 68),
    Sketcher.Constraint("Equal", 68, 69),
    Sketcher.Constraint("Equal", 69, 71),
    Sketcher.Constraint("Equal", 73, 75),
    Sketcher.Constraint("Equal", 52, 78),
    Sketcher.Constraint("Equal", 78, 79),
    Sketcher.Constraint("Equal", 77, 81),
    Sketcher.Constraint("Equal", 83, 84),
    Sketcher.Constraint("Equal", 84, 86),
    Sketcher.Constraint("Equal", 88, 89),
    Sketcher.Constraint("PointOnObject", 3, 2, -2),
    Sketcher.Constraint("PointOnObject", 5, 2, -1),
    Sketcher.Constraint("Horizontal", 10, 3, 11, 3),
    Sketcher.Constraint("Horizontal", 7, 3, 12, 3),
    Sketcher.Constraint("Horizontal", 24, 3, 29, 3),
    Sketcher.Constraint("Horizontal", 12, 3, 30, 3),
    Sketcher.Constraint("Horizontal", 11, 3, 33, 3),
    Sketcher.Constraint("Horizontal", 13, 3, 35, 3),
    Sketcher.Constraint("Horizontal", 33, 3, 36, 3),
    Sketcher.Constraint("Horizontal", 26, 3, 37, 3),
    Sketcher.Constraint("Horizontal", 28, 3, 38, 3),
    Sketcher.Constraint("Horizontal", 38, 3, 39, 3),
    Sketcher.Constraint("Horizontal", 29, 3, 40, 3),
    Sketcher.Constraint("Horizontal", 27, 3, 41, 3),
    Sketcher.Constraint("Horizontal", 17, 3, 43, 3),
    Sketcher.Constraint("Horizontal", 21, 3, 47, 3),
    Sketcher.Constraint("Horizontal", 40, 3, 50, 3),
    Sketcher.Constraint("Horizontal", 23, 3, 51, 3),
    Sketcher.Constraint("Horizontal", 22, 3, 52, 3),
    Sketcher.Constraint("Horizontal", 1, 3, 59, 3),
    Sketcher.Constraint("Horizontal", 59, 3, 60, 3),
    Sketcher.Constraint("Horizontal", 52, 3, 64, 3),
    Sketcher.Constraint("Horizontal", 55, 3, 65, 3),
    Sketcher.Constraint("Horizontal", 54, 3, 66, 3),
    Sketcher.Constraint("Horizontal", 57, 3, 67, 3),
    Sketcher.Constraint("Horizontal", 56, 3, 68, 3),
    Sketcher.Constraint("Horizontal", 58, 3, 71, 3),
    Sketcher.Constraint("Horizontal", 60, 3, 75, 3),
    Sketcher.Constraint("Horizontal", 77, 3, 79, 3),
    Sketcher.Constraint("Horizontal", 73, 3, 81, 3),
    Sketcher.Constraint("Horizontal", 83, 3, 84, 3),
    Sketcher.Constraint("Horizontal", 79, 3, 86, 3),
    Sketcher.Constraint("Horizontal", 88, 3, 89, 3),
    Sketcher.Constraint("Vertical", 15, 3, 19, 3),
    Sketcher.Constraint("Vertical", 17, 3, 21, 3),
    Sketcher.Constraint("Vertical", 10, 3, 22, 3),
    Sketcher.Constraint("Vertical", 13, 3, 28, 3),
    Sketcher.Constraint("Vertical", 28, 3, 29, 3),
    Sketcher.Constraint("Vertical", 35, 3, 39, 3),
    Sketcher.Constraint("Vertical", 39, 3, 40, 3),
    Sketcher.Constraint("Vertical", 43, 3, 47, 3),
    Sketcher.Constraint("Vertical", 45, 3, 49, 3),
    Sketcher.Constraint("Vertical", 36, 3, 52, 3),
    Sketcher.Constraint("Vertical", 29, 3, 55, 3),
    Sketcher.Constraint("Vertical", 26, 3, 56, 3),
    Sketcher.Constraint("Vertical", 55, 3, 57, 3),
    Sketcher.Constraint("Vertical", 12, 3, 58, 3),
    Sketcher.Constraint("Vertical", 11, 3, 59, 3),
    Sketcher.Constraint("Vertical", 58, 3, 60, 3),
    Sketcher.Constraint("Vertical", 38, 3, 62, 3),
    Sketcher.Constraint("Vertical", 40, 3, 65, 3),
    Sketcher.Constraint("Vertical", 65, 3, 67, 3),
    Sketcher.Constraint("Vertical", 37, 3, 68, 3),
    Sketcher.Constraint("Vertical", 64, 3, 69, 3),
    Sketcher.Constraint("Vertical", 30, 3, 73, 3),
    Sketcher.Constraint("Vertical", 71, 3, 75, 3),
    Sketcher.Constraint("Vertical", 73, 3, 77, 3),
    Sketcher.Constraint("Vertical", 31, 3, 78, 3),
    Sketcher.Constraint("Vertical", 33, 3, 79, 3),
    Sketcher.Constraint("Vertical", 7, 3, 84, 3),
    Sketcher.Constraint("Vertical", 81, 3, 86, 3),
    Sketcher.Constraint("Vertical", 83, 3, 88, 3),
    Sketcher.Constraint("Vertical", 84, 3, 89, 3),
    Sketcher.Constraint("Equal", 20, 42),
    Sketcher.Constraint("Radius", 1, 10.0),
    Sketcher.Constraint("Radius", 9, 3.0),
    Sketcher.Constraint("Diameter", 12, 5.4),
    Sketcher.Constraint("Diameter", 13, 5.1),
    Sketcher.Constraint("Diameter", 28, 3.4),
    Sketcher.Constraint("Radius", 23, 0.4),
    Sketcher.Constraint("Diameter", 10, 7.18),
    Sketcher.Constraint("DistanceX", 6, 1, 6, 2, 140.0),
    Sketcher.Constraint("DistanceX", 14, 1, 14, 2, 2.0),
    Sketcher.Constraint("DistanceX", 70, 1, 70, 2, 10.0),
    Sketcher.Constraint("DistanceX", 80, 1, 80, 2, 5.0),
    Sketcher.Constraint("DistanceY", 8, 1, 8, 2, 142.0),
    Sketcher.Constraint("DistanceY", 61, 1, 61, 2, 12.0),
    Sketcher.Constraint("Radius", 15, 1.15),
    Sketcher.Constraint("Radius", 62, 11.25),
    Sketcher.Constraint("DistanceX", -1, 1, 12, 3, 70.0),
    Sketcher.Constraint("DistanceY", -1, 1, 13, 3, 39.0),
    Sketcher.Constraint("DistanceY", -1, 1, 15, 3, 54.0),
    Sketcher.Constraint("DistanceX", -1, 1, 30, 3, 90.0),
    Sketcher.Constraint("DistanceX", -1, 1, 38, 3, 80.0),
    Sketcher.Constraint("DistanceY", -1, 1, 58, 3, 125.0),
    Sketcher.Constraint("DistanceX", -1, 1, 81, 3, 129.999999),
    Sketcher.Constraint("DistanceX", -1, 1, 10, 3, 12.7),
    Sketcher.Constraint("DistanceY", -1, 1, 10, 3, 12.7),
    Sketcher.Constraint("DistanceX", -1, 1, 11, 3, 47.7),
    Sketcher.Constraint("DistanceX", -1, 1, 13, 3, 64.5),
    Sketcher.Constraint("DistanceX", -1, 1, 15, 3, 5.5),
    Sketcher.Constraint("DistanceY", -1, 1, 19, 3, 60.5),
    Sketcher.Constraint("DistanceY", -1, 1, 22, 3, 77.3),
    Sketcher.Constraint("DistanceX", -1, 1, 24, 3, 10.3),
    Sketcher.Constraint("DistanceY", -1, 1, 24, 3, 73.8),
    Sketcher.Constraint("DistanceX", -1, 1, 27, 3, 52.5),
    Sketcher.Constraint("DistanceY", -1, 1, 27, 3, 76.5),
    Sketcher.Constraint("DistanceY", -1, 1, 28, 3, 61.8),
    Sketcher.Constraint("DistanceX", -1, 1, 31, 3, 108.8),
    Sketcher.Constraint("DistanceY", -1, 1, 31, 3, 10.3),
    Sketcher.Constraint("DistanceX", -1, 1, 33, 3, 112.3),
    Sketcher.Constraint("DistanceX", -1, 1, 35, 3, 95.5),
    Sketcher.Constraint("DistanceX", -1, 1, 36, 3, 147.3),
    Sketcher.Constraint("DistanceX", -1, 1, 41, 3, 107.5),
    Sketcher.Constraint("DistanceX", -1, 1, 43, 3, 156.5),
    Sketcher.Constraint("DistanceY", -1, 1, 55, 3, 92.8),
    Sketcher.Constraint("DistanceY", -1, 1, 57, 3, 104.8),
    Sketcher.Constraint("DistanceY", -1, 1, 78, 3, 139.5),
    Sketcher.Constraint("DistanceX", -1, 1, 26, 3, 56.38),
    Sketcher.Constraint("DistanceY", -1, 1, 26, 3, 53.68),
    Sketcher.Constraint("DistanceX", -1, 1, 37, 3, 103.62),
    Sketcher.Constraint("DistanceY", -1, 1, 56, 3, 100.92),
    Sketcher.Constraint("DistanceX", 0, 2, 0, 1, 109.32129),
    Sketcher.Constraint("DistanceY", 4, 2, 4, 1, 67.304518),
    Sketcher.Constraint("DistanceY", -1, 1, 69, 3, 128.607449),
    Sketcher.Constraint("DistanceX", -1, 1, 54, 3, 46.596276),
    Sketcher.Constraint("DistanceY", -1, 1, 54, 3, 95.203724),
    Sketcher.Constraint("DistanceX", -1, 1, 66, 3, 113.403724),
])
sketch1.setExpression("Constraints[193]", "Params.sketch1_radius")
sketch1.setExpression("Constraints[194]", "Params.sketch1_radius2")
sketch1.setExpression("Constraints[195]", "Params.sketch1_diameter")
sketch1.setExpression("Constraints[196]", "Params.sketch1_diameter2")
sketch1.setExpression("Constraints[197]", "Params.sketch1_diameter3")
pad1 = body.newObject("PartDesign::Pad", "Pad")
pad1.Profile = sketch1
pad1.setExpression("Length", "Params.pad1_length")

doc.recompute()
